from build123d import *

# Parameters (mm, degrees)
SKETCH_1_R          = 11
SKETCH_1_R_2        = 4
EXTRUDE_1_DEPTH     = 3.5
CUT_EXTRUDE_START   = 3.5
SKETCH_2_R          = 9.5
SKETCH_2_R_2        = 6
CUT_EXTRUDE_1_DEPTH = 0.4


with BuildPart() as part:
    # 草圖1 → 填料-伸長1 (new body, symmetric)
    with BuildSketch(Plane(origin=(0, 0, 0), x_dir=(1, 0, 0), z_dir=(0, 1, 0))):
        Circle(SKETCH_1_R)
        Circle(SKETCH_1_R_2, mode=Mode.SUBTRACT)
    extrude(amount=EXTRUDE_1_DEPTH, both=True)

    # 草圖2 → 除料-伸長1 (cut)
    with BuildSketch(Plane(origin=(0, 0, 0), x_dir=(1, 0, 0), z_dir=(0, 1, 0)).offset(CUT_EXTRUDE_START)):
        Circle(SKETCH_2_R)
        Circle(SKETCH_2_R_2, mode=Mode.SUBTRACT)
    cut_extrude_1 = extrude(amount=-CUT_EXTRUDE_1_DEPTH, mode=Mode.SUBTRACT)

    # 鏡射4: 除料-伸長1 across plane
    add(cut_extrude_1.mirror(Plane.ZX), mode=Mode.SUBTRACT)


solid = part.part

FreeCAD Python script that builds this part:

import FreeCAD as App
import Part
import Sketcher

V = App.Vector

doc = App.newDocument("Part")
body = doc.addObject("PartDesign::Body", "Body")

sketch1 = doc.addObject("Sketcher::SketchObject", "Sketch")
body.addObject(sketch1)
sketch1.AttachmentSupport = (doc.XZ_Plane, [""])
sketch1.MapMode = "FlatFace"
sketch1.addGeometry(Part.Circle(V(0, 0, 0), V(0, 0, 1), 11), False)
sketch1.addGeometry(Part.Circle(V(0, 0, 0), V(0, 0, 1), 4), False)
sketch1.addConstraint(Sketcher.Constraint("Coincident", 0, 3, -1, 1))
sketch1.addConstraint(Sketcher.Constraint("Coincident", 1, 3, -1, 1))
sketch1.addConstraint(Sketcher.Constraint("Diameter", 0, 22.0))
sketch1.addConstraint(Sketcher.Constraint("Diameter", 1, 8.0))
pad1 = doc.addObject("PartDesign::Pad", "Pad")
body.addObject(pad1)
pad1.Profile = sketch1
pad1.Length = 7
pad1.Midplane = True

sketch2 = doc.addObject("Sketcher::SketchObject", "Sketch001")
body.addObject(sketch2)
sketch2.AttachmentSupport = (doc.XZ_Plane, [""])
sketch2.MapMode = "FlatFace"
sketch2.AttachmentOffset = App.Placement(V(0, 0, -3.5), App.Rotation())
sketch2.addGeometry(Part.Circle(V(0, 0, 0), V(0, 0, 1), 10), False)
sketch2.addGeometry(Part.Circle(V(0, 0, 0), V(0, 0, 1), 6), False)
sketch2.addConstraint(Sketcher.Constraint("Coincident", 0, 3, -1, 1))
sketch2.addConstraint(Sketcher.Constraint("Coincident", 1, 3, -1, 1))
sketch2.addConstraint(Sketcher.Constraint("Diameter", 0, 19.0))
sketch2.addConstraint(Sketcher.Constraint("Diameter", 1, 12.0))
pocket1 = doc.addObject("PartDesign::Pocket", "Pocket")
body.addObject(pocket1)
pocket1.Profile = sketch2
pocket1.Length = 0.4
pocket1.Reversed = True
doc.recompute()

mirrored = doc.addObject("PartDesign::Mirrored", "Mirrored")
body.addObject(mirrored)
mirrored.Originals = [pocket1]
mirrored.MirrorPlane = (doc.XZ_Plane, [""])
body.Tip = mirrored

doc.recompute()
